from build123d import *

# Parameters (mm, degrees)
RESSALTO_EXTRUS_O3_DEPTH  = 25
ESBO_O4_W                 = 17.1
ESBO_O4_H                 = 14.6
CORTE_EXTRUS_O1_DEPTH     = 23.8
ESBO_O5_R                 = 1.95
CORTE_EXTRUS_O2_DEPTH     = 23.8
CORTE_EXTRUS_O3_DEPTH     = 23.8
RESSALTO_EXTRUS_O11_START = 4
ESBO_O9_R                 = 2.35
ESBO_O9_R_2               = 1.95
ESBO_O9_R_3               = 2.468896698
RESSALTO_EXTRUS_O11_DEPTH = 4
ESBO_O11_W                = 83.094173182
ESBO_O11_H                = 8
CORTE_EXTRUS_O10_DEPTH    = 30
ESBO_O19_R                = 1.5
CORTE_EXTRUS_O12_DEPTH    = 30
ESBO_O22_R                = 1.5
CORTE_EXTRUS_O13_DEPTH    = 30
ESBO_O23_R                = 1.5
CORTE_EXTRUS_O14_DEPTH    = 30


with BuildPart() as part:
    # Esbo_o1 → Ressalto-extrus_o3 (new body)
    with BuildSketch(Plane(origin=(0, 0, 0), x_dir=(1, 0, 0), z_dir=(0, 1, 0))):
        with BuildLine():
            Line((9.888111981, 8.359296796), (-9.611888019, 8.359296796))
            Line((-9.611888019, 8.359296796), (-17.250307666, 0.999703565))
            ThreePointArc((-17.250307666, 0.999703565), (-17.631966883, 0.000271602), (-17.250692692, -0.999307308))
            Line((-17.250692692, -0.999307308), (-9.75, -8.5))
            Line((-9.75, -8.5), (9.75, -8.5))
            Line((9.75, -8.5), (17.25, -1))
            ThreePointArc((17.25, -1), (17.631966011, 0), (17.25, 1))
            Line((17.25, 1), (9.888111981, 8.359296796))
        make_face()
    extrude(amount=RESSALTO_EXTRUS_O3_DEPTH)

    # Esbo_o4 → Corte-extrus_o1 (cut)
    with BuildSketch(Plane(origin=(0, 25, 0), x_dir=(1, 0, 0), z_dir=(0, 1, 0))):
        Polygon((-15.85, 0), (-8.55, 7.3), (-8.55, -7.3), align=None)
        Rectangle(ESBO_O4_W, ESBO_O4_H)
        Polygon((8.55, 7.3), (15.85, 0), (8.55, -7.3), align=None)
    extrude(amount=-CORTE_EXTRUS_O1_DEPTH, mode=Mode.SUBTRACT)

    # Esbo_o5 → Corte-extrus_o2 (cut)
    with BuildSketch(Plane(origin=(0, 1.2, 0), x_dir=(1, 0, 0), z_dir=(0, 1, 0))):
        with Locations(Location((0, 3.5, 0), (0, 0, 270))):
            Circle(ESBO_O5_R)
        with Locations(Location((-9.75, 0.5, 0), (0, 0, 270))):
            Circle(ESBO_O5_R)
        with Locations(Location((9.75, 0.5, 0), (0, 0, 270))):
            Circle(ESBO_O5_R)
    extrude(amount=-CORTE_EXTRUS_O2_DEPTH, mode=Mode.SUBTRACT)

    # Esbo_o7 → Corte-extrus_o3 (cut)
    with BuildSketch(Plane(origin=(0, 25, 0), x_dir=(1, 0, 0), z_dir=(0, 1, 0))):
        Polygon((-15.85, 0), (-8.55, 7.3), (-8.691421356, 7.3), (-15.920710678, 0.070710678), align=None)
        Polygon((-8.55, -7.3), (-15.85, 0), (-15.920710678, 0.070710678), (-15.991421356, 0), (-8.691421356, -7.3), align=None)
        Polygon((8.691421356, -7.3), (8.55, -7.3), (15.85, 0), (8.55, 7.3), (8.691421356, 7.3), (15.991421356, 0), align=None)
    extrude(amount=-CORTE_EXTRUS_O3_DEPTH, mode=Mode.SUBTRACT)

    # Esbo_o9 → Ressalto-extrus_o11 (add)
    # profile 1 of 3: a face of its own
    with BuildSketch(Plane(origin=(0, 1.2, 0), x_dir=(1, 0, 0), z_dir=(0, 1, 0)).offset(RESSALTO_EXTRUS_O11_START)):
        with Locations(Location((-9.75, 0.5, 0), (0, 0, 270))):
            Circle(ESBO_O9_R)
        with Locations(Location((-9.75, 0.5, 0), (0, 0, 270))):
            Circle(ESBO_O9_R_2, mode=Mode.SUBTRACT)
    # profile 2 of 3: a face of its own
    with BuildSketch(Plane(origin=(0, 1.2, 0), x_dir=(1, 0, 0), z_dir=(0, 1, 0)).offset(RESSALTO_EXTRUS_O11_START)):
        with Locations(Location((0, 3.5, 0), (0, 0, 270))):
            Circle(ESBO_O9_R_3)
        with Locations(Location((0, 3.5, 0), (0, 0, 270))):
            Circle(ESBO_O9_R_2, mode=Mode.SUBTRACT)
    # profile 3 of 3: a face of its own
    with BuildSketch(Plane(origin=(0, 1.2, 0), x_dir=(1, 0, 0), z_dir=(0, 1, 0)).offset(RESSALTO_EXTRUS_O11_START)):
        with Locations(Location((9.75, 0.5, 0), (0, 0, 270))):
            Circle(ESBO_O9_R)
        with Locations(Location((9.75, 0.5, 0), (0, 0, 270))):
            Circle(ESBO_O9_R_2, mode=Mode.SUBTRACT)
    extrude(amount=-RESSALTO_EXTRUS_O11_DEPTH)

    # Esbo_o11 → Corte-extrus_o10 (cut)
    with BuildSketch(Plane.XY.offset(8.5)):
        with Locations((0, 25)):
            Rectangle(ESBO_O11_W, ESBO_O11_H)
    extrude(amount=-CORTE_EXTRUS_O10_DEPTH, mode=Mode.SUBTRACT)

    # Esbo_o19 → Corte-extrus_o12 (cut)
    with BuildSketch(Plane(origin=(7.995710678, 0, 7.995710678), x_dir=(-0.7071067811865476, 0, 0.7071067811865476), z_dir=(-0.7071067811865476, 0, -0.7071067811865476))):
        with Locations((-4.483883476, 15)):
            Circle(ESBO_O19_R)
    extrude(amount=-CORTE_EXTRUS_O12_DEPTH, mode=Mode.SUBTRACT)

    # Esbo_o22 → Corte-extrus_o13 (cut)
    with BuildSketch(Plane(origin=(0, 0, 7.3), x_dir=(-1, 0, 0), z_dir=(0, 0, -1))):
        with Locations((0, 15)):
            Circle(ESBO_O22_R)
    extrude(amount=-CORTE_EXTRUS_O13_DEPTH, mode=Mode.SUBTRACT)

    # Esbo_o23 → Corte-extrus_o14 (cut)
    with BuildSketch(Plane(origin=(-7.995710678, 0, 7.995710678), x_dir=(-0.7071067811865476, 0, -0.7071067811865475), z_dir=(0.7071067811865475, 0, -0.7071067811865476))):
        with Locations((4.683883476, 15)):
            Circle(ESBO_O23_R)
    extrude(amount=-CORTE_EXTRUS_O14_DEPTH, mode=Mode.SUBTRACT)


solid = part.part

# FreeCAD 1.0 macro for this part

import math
import FreeCAD as App
import Part
import Sketcher
Q = App.Units.Quantity

doc = App.newDocument("Part")
body = doc.addObject("PartDesign::Body", "Body")

# Sketch on XZ plane
sketch1 = body.newObject("Sketcher::SketchObject", "Sketch")
sketch1.AttachmentSupport = (doc.getObject("XZ_Plane"), [""])
sketch1.MapMode = "FlatFace"
sketch1.addGeometry([
    Part.LineSegment(App.Vector(9.9, -8.4, 0), App.Vector(-9.6, -8.4, 0)),  # 0
    Part.LineSegment(App.Vector(-9.6, -8.4, 0), App.Vector(-17.3, -1, 0)),  # 1
    Part.ArcOfCircle(Part.Circle(App.Vector(-16.1, 0, 0), App.Vector(0, 0, 1), 1.5), math.radians(138), math.radians(222)),  # 2
    Part.LineSegment(App.Vector(-17.3, 1, 0), App.Vector(-9.8, 8.5, 0)),  # 3
    Part.LineSegment(App.Vector(-9.8, 8.5, 0), App.Vector(9.8, 8.5, 0)),  # 4
    Part.LineSegment(App.Vector(9.8, 8.5, 0), App.Vector(17.2, 1, 0)),  # 5
    Part.ArcOfCircle(Part.Circle(App.Vector(16.1, 0, 0), App.Vector(0, 0, 1), 1.5), math.radians(-42), math.radians(42)),  # 6
    Part.LineSegment(App.Vector(17.2, -1, 0), App.Vector(9.9, -8.4, 0)),  # 7
], False)
sketch1.addConstraint([
    Sketcher.Constraint("Coincident", 0, 2, 1, 1),
    Sketcher.Constraint("Coincident", 1, 2, 2, 2),
    Sketcher.Constraint("Coincident", 2, 1, 3, 1),
    Sketcher.Constraint("Coincident", 3, 2, 4, 1),
    Sketcher.Constraint("Coincident", 4, 2, 5, 1),
    Sketcher.Constraint("Coincident", 5, 2, 6, 2),
    Sketcher.Constraint("Coincident", 6, 1, 7, 1),
    Sketcher.Constraint("Coincident", 7, 2, 0, 1),
    Sketcher.Constraint("Horizontal", 0),
    Sketcher.Constraint("Horizontal", 4),
    Sketcher.Constraint("Symmetric", 5, 2, 6, 1, -1),
    Sketcher.Constraint("Perpendicular", 3, 5),
    Sketcher.Constraint("Equal", 0, 4),
    Sketcher.Constraint("Radius", 6, 1.5),
    Sketcher.Constraint("Angle", 3, Q("45 deg")),
    Sketcher.Constraint("DistanceX", 0, 2, 0, 1, 19.5),
    Sketcher.Constraint("DistanceY", -1, 1, 5, 2, 1.0),
    Sketcher.Constraint("DistanceX", 3, 2, 5, 2, 27.0),
    Sketcher.Constraint("DistanceX", 3, 2, -1, 1, 9.75),
    Sketcher.Constraint("Radius", 2, 1.500168),
    Sketcher.Constraint("DistanceX", 2, 3, -1, 1, 16.131799),
    Sketcher.Constraint("Distance", 1, 10.607029),
    Sketcher.Constraint("Distance", 3, 10.607581),
    Sketcher.Constraint("Distance", 7, 10.40945),
    Sketcher.Constraint("DistanceX", 0, 2, -1, 1, 9.611888),
])
pad1 = body.newObject("PartDesign::Pad", "Pad")
pad1.Profile = sketch1
pad1.Length = 25
pad1.Reversed = True

# Sketch on XZ plane
sketch2 = body.newObject("Sketcher::SketchObject", "Sketch001")
sketch2.AttachmentSupport = (doc.getObject("XZ_Plane"), [""])
sketch2.MapMode = "FlatFace"
sketch2.AttachmentOffset = App.Placement(App.Vector(0, 0, -25), App.Rotation())
sketch2.addGeometry([
    Part.LineSegment(App.Vector(-9, -7, 0), App.Vector(-16, 0, 0)),  # 0
    Part.LineSegment(App.Vector(-16, 0, 0), App.Vector(-9, 7, 0)),  # 1
    Part.LineSegment(App.Vector(-9, 7, 0), App.Vector(9, 7, 0)),  # 2
    Part.LineSegment(App.Vector(9, 7, 0), App.Vector(16, 0, 0)),  # 3
    Part.LineSegment(App.Vector(16, 0, 0), App.Vector(9, -7, 0)),  # 4
    Part.LineSegment(App.Vector(9, -7, 0), App.Vector(-9, -7, 0)),  # 5
], False)
sketch2.addConstraint([
    Sketcher.Constraint("Coincident", 0, 2, 1, 1),
    Sketcher.Constraint("Coincident", 1, 2, 2, 1),
    Sketcher.Constraint("Coincident", 2, 2, 3, 1),
    Sketcher.Constraint("Coincident", 3, 2, 4, 1),
    Sketcher.Constraint("Coincident", 4, 2, 5, 1),
    Sketcher.Constraint("Coincident", 5, 2, 0, 1),
    Sketcher.Constraint("Horizontal", 2),
    Sketcher.Constraint("Horizontal", 5),
    Sketcher.Constraint("Symmetric", 0, 2, 3, 2, -1, 1),
    Sketcher.Constraint("Symmetric", 1, 2, 4, 2, -1, 1),
    Sketcher.Constraint("PointOnObject", 0, 2, -1),
    Sketcher.Constraint("Perpendicular", 0, 1),
    Sketcher.Constraint("Perpendicular", 1, 3),
    Sketcher.Constraint("Vertical", 2, 2, 4, 2),
    Sketcher.Constraint("DistanceX", 2, 1, 2, 2, 17.1),
    Sketcher.Constraint("DistanceY", -1, 1, 1, 2, 7.3),
])
pocket1 = body.newObject("PartDesign::Pocket", "Pocket")
pocket1.Profile = sketch2
pocket1.Length = 23.8
pocket1.Reversed = True

# Sketch on XZ plane
sketch3 = body.newObject("Sketcher::SketchObject", "Sketch002")
sketch3.AttachmentSupport = (doc.getObject("XZ_Plane"), [""])
sketch3.MapMode = "FlatFace"
sketch3.AttachmentOffset = App.Placement(App.Vector(0, 0, -1.2), App.Rotation())
sketch3.addGeometry([
    Part.Circle(App.Vector(0, -3.5, 0), App.Vector(0, 0, 1), 1.9),
    Part.Circle(App.Vector(-9.8, -0.5, 0), App.Vector(0, 0, 1), 1.9),
    Part.Circle(App.Vector(9.8, -0.5, 0), App.Vector(0, 0, 1), 1.9),
], False)
sketch3.addConstraint([
    Sketcher.Constraint("Equal", 0, 1),
    Sketcher.Constraint("Equal", 1, 2),
    Sketcher.Constraint("Symmetric", 1, 3, 2, 3, -2),
    Sketcher.Constraint("PointOnObject", 0, 3, -2),
    Sketcher.Constraint("Diameter", 0, 3.9),
    Sketcher.Constraint("DistanceY", 0, 3, 1, 3, 3.0),
    Sketcher.Constraint("DistanceY", 0, 3, -1, 1, 3.5),
    Sketcher.Constraint("DistanceX", 1, 3, 2, 3, 19.5),
])
pocket2 = body.newObject("PartDesign::Pocket", "Pocket001")
pocket2.Profile = sketch3
pocket2.Length = 23.8
pocket2.Reversed = True

# Sketch on XZ plane
sketch4 = body.newObject("Sketcher::SketchObject", "Sketch003")
sketch4.AttachmentSupport = (doc.getObject("XZ_Plane"), [""])
sketch4.MapMode = "FlatFace"
sketch4.AttachmentOffset = App.Placement(App.Vector(0, 0, -25), App.Rotation())
sketch4.addGeometry([
    Part.LineSegment(App.Vector(-15.85, 0, 0), App.Vector(-8.55, -7.3, 0)),  # 0
    Part.LineSegment(App.Vector(-8.55, -7.3, 0), App.Vector(-8.69, -7.3, 0)),  # 1
    Part.LineSegment(App.Vector(-8.69, -7.3, 0), App.Vector(-15.99, 0, 0)),  # 2
    Part.LineSegment(App.Vector(-15.99, 0, 0), App.Vector(-8.69, 7.3, 0)),  # 3
    Part.LineSegment(App.Vector(-8.69, 7.3, 0), App.Vector(-8.55, 7.3, 0)),  # 4
    Part.LineSegment(App.Vector(-8.55, 7.3, 0), App.Vector(-15.85, 0, 0)),  # 5
    Part.LineSegment(App.Vector(8.55, 7.3, 0), App.Vector(8.69, 7.3, 0)),  # 6
    Part.LineSegment(App.Vector(8.69, 7.3, 0), App.Vector(15.99, 0, 0)),  # 7
    Part.LineSegment(App.Vector(15.99, 0, 0), App.Vector(8.69, -7.3, 0)),  # 8
    Part.LineSegment(App.Vector(8.69, -7.3, 0), App.Vector(8.55, -7.3, 0)),  # 9
    Part.LineSegment(App.Vector(8.55, -7.3, 0), App.Vector(15.85, 0, 0)),  # 10
    Part.LineSegment(App.Vector(15.85, 0, 0), App.Vector(8.55, 7.3, 0)),  # 11
], False)
sketch4.addConstraint([
    Sketcher.Constraint("Coincident", 0, 2, 1, 1),
    Sketcher.Constraint("Coincident", 1, 2, 2, 1),
    Sketcher.Constraint("Coincident", 2, 2, 3, 1),
    Sketcher.Constraint("Coincident", 3, 2, 4, 1),
    Sketcher.Constraint("Coincident", 4, 2, 5, 1),
    Sketcher.Constraint("Coincident", 5, 2, 0, 1),
    Sketcher.Constraint("Coincident", 6, 2, 7, 1),
    Sketcher.Constraint("Coincident", 7, 2, 8, 1),
    Sketcher.Constraint("Coincident", 8, 2, 9, 1),
    Sketcher.Constraint("Coincident", 9, 2, 10, 1),
    Sketcher.Constraint("Coincident", 10, 2, 11, 1),
    Sketcher.Constraint("Coincident", 11, 2, 6, 1),
    Sketcher.Constraint("Horizontal", 1),
    Sketcher.Constraint("Horizontal", 4),
    Sketcher.Constraint("Horizontal", 6),
    Sketcher.Constraint("Horizontal", 9),
    Sketcher.Constraint("Symmetric", 1, 2, 6, 2, -1, 1),
    Sketcher.Constraint("Symmetric", 2, 2, 7, 2, -1, 1),
    Sketcher.Constraint("Symmetric", 3, 2, 8, 2, -1, 1),
    Sketcher.Constraint("Symmetric", 5, 2, 10, 2, -1, 1),
    Sketcher.Constraint("Symmetric", 3, 2, 6, 2, -2),
    Sketcher.Constraint("PointOnObject", 2, 2, -1),
    Sketcher.Constraint("PointOnObject", 5, 2, -1),
    Sketcher.Constraint("Parallel", 0, 2),
    Sketcher.Constraint("Perpendicular", 2, 3),
    Sketcher.Constraint("Parallel", 3, 5),
    Sketcher.Constraint("Parallel", 8, 10),
    Sketcher.Constraint("Perpendicular", 10, 11),
    Sketcher.Constraint("DistanceY", 0, 2, -1, 1, 7.3),
    Sketcher.Constraint("DistanceX", 0, 2, 9, 2, 17.1),
    Sketcher.Constraint("DistanceX", 1, 2, 1, 1, 0.141421),
])
pocket3 = body.newObject("PartDesign::Pocket", "Pocket002")
pocket3.Profile = sketch4
pocket3.Length = 23.8
pocket3.Reversed = True

# Sketch on XZ plane
sketch5 = body.newObject("Sketcher::SketchObject", "Sketch004")
sketch5.AttachmentSupport = (doc.getObject("XZ_Plane"), [""])
sketch5.MapMode = "FlatFace"
sketch5.AttachmentOffset = App.Placement(App.Vector(0, 0, -5.2), App.Rotation())
sketch5.addGeometry([
    Part.Circle(App.Vector(-9.8, -0.5, 0), App.Vector(0, 0, 1), 2.4),  # 0
    Part.Circle(App.Vector(-9.8, -0.5, 0), App.Vector(0, 0, 1), 1.9),  # 1
    Part.Circle(App.Vector(0, -3.5, 0), App.Vector(0, 0, 1), 2.5),  # 2
    Part.Circle(App.Vector(0, -3.5, 0), App.Vector(0, 0, 1), 1.9),  # 3
    Part.Circle(App.Vector(9.8, -0.5, 0), App.Vector(0, 0, 1), 2.4),  # 4
    Part.Circle(App.Vector(9.8, -0.5, 0), App.Vector(0, 0, 1), 1.9),  # 5
], False)
sketch5.addConstraint([
    Sketcher.Constraint("Coincident", 1, 3, 0, 3),
    Sketcher.Constraint("Coincident", 3, 3, 2, 3),
    Sketcher.Constraint("Coincident", 5, 3, 4, 3),
    Sketcher.Constraint("Equal", 1, 3),
    Sketcher.Constraint("Equal", 0, 4),
    Sketcher.Constraint("Equal", 3, 5),
    Sketcher.Constraint("Symmetric", 0, 3, 4, 3, -2),
    Sketcher.Constraint("PointOnObject", 2, 3, -2),
    Sketcher.Constraint("Diameter", 0, 4.7),
    Sketcher.Constraint("Diameter", 1, 3.9),
    Sketcher.Constraint("DistanceY", 2, 3, 0, 3, 3.0),
    Sketcher.Constraint("DistanceY", 0, 3, -1, 1, 0.5),
    Sketcher.Constraint("DistanceX", 0, 3, 4, 3, 19.5),
    Sketcher.Constraint("Diameter", 2, 4.937793),
])
pad2 = body.newObject("PartDesign::Pad", "Pad001")
pad2.Profile = sketch5
pad2.Length = 4

# Sketch on XY plane
sketch6 = body.newObject("Sketcher::SketchObject", "Sketch005")
sketch6.AttachmentSupport = (doc.getObject("XY_Plane"), [""])
sketch6.MapMode = "FlatFace"
sketch6.AttachmentOffset = App.Placement(App.Vector(0, 0, 8.5), App.Rotation())
sketch6.addGeometry([
    Part.LineSegment(App.Vector(-42, 29, 0), App.Vector(-42, 21, 0)),
    Part.LineSegment(App.Vector(-42, 21, 0), App.Vector(42, 21, 0)),
    Part.LineSegment(App.Vector(42, 21, 0), App.Vector(42, 29, 0)),
    Part.LineSegment(App.Vector(42, 29, 0), App.Vector(-42, 29, 0)),
], False)
sketch6.addConstraint([
    Sketcher.Constraint("Coincident", 0, 2, 1, 1),
    Sketcher.Constraint("Coincident", 1, 2, 2, 1),
    Sketcher.Constraint("Coincident", 2, 2, 3, 1),
    Sketcher.Constraint("Coincident", 3, 2, 0, 1),
    Sketcher.Constraint("Vertical", 0),
    Sketcher.Constraint("Horizontal", 1),
    Sketcher.Constraint("Vertical", 2),
    Sketcher.Constraint("Horizontal", 3),
    Sketcher.Constraint("DistanceY", 0, 2, 0, 1, 8.0),
    Sketcher.Constraint("DistanceY", -1, 1, 0, 2, 21.0),
    Sketcher.Constraint("DistanceX", 1, 1, 1, 2, 83.094173),
    Sketcher.Constraint("DistanceX", 0, 2, -1, 1, 41.547087),
])
pocket4 = body.newObject("PartDesign::Pocket", "Pocket003")
pocket4.Profile = sketch6
pocket4.Length = 30

# Sketch on an angled plane
sketch7 = body.newObject("Sketcher::SketchObject", "Sketch006")
sketch7.Placement = App.Placement(App.Vector(7.995711, 0, 7.995711), App.Rotation(App.Vector(-0.707106781, 0, 0.707106781), App.Vector(0, 0.999999999, 0), App.Vector(-0.707106781, 0, -0.707106781), "ZXY"))
sketch7.addGeometry(Part.Circle(App.Vector(-4.5, 15, 0), App.Vector(0, 0, 1), 1.5), False)
sketch7.addConstraint([
    Sketcher.Constraint("Diameter", 0, 3.0),
    Sketcher.Constraint("DistanceY", -1, 1, 0, 3, 15.0),
    Sketcher.Constraint("DistanceX", 0, 3, -1, 1, 4.483883),
])
pocket5 = body.newObject("PartDesign::Pocket", "Pocket004")
pocket5.Profile = sketch7
pocket5.Length = 30

# Sketch on XY plane
sketch8 = body.newObject("Sketcher::SketchObject", "Sketch007")
sketch8.AttachmentSupport = (doc.getObject("XY_Plane"), [""])
sketch8.MapMode = "FlatFace"
sketch8.AttachmentOffset = App.Placement(App.Vector(0, 0, 7.3), App.Rotation())
sketch8.addGeometry(Part.Circle(App.Vector(0, 15, 0), App.Vector(0, 0, 1), 1.5), False)
sketch8.addConstraint([
    Sketcher.Constraint("PointOnObject", 0, 3, -2),
    Sketcher.Constraint("Diameter", 0, 3.0),
    Sketcher.Constraint("DistanceY", -1, 1, 0, 3, 15.0),
])
pocket6 = body.newObject("PartDesign::Pocket", "Pocket005")
pocket6.Profile = sketch8
pocket6.Length = 30
pocket6.Reversed = True

# Sketch on an angled plane
sketch9 = body.newObject("Sketcher::SketchObject", "Sketch008")
sketch9.Placement = App.Placement(App.Vector(-7.995711, 0, 7.995711), App.Rotation(App.Vector(-0.707106781, 0, -0.707106781), App.Vector(0, 0.999999999, 0), App.Vector(0.707106781, 0, -0.707106781), "ZXY"))
sketch9.addGeometry(Part.Circle(App.Vector(4.7, 15, 0), App.Vector(0, 0, 1), 1.5), False)
sketch9.addConstraint([
    Sketcher.Constraint("Diameter", 0, 3.0),
    Sketcher.Constraint("DistanceY", -1, 1, 0, 3, 15.0),
    Sketcher.Constraint("DistanceX", -1, 1, 0, 3, 4.683883),
])
pocket7 = body.newObject("PartDesign::Pocket", "Pocket006")
pocket7.Profile = sketch9
pocket7.Length = 30

doc.recompute()
